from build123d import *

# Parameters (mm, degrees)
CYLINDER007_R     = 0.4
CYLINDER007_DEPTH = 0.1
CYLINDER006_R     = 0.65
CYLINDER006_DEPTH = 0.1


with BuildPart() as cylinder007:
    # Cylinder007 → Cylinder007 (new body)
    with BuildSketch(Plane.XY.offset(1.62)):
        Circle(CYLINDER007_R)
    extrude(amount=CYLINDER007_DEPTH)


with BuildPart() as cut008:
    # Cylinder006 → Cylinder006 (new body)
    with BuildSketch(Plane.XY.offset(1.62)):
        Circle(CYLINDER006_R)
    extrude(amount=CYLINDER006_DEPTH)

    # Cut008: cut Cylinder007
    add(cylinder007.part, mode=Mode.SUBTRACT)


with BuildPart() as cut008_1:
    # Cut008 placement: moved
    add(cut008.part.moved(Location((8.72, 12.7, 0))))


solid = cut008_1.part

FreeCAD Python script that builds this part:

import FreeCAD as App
import Part
import Sketcher
from FreeCAD import Vector

doc = App.newDocument("Part")
body = doc.addObject("PartDesign::Body", "Body")

# Sketch on XY plane
sketch1 = body.newObject("Sketcher::SketchObject", "Sketch")
sketch1.AttachmentSupport = (doc.getObject("XY_Plane"), [""])
sketch1.MapMode = "FlatFace"
sketch1.AttachmentOffset = App.Placement(Vector(0, 0, 1.62), App.Rotation())
sketch1.addGeometry(Part.Circle(Vector(0, 0, 0), Vector(0, 0, 1), 0.4), False)
sketch1.addConstraint([
    Sketcher.Constraint("Coincident", 0, 3, -1, 1),
    Sketcher.Constraint("Diameter", 0, 0.8),
])
pad1 = body.newObject("PartDesign::Pad", "Pad")
pad1.Profile = sketch1
pad1.Length = 0.1
body2 = doc.addObject("PartDesign::Body", "Body001")

# Sketch on XY plane
sketch2 = body2.newObject("Sketcher::SketchObject", "Sketch001")
sketch2.AttachmentSupport = (doc.getObject("XY_Plane001"), [""])
sketch2.MapMode = "FlatFace"
sketch2.AttachmentOffset = App.Placement(Vector(0, 0, 1.62), App.Rotation())
sketch2.addGeometry(Part.Circle(Vector(0, 0, 0), Vector(0, 0, 1), 0.65), False)
sketch2.addConstraint([
    Sketcher.Constraint("Coincident", 0, 3, -1, 1),
    Sketcher.Constraint("Diameter", 0, 1.3),
])
pad2 = body2.newObject("PartDesign::Pad", "Pad001")
pad2.Profile = sketch2
pad2.Length = 0.1
doc.recompute()

boolean = body2.newObject("PartDesign::Boolean", "Boolean")
boolean.Type = "Cut"
boolean.addObjects([body])
body3 = doc.addObject("PartDesign::Body", "Body002")
doc.recompute()

body2.Placement = App.Placement(Vector(8.72, 12.7, 0), App.Rotation(Vector(0, 0, 1), 0))
boolean2 = body3.newObject("PartDesign::Boolean", "Boolean001")
boolean2.Type = "Fuse"
boolean2.addObjects([body2])

doc.recompute()
